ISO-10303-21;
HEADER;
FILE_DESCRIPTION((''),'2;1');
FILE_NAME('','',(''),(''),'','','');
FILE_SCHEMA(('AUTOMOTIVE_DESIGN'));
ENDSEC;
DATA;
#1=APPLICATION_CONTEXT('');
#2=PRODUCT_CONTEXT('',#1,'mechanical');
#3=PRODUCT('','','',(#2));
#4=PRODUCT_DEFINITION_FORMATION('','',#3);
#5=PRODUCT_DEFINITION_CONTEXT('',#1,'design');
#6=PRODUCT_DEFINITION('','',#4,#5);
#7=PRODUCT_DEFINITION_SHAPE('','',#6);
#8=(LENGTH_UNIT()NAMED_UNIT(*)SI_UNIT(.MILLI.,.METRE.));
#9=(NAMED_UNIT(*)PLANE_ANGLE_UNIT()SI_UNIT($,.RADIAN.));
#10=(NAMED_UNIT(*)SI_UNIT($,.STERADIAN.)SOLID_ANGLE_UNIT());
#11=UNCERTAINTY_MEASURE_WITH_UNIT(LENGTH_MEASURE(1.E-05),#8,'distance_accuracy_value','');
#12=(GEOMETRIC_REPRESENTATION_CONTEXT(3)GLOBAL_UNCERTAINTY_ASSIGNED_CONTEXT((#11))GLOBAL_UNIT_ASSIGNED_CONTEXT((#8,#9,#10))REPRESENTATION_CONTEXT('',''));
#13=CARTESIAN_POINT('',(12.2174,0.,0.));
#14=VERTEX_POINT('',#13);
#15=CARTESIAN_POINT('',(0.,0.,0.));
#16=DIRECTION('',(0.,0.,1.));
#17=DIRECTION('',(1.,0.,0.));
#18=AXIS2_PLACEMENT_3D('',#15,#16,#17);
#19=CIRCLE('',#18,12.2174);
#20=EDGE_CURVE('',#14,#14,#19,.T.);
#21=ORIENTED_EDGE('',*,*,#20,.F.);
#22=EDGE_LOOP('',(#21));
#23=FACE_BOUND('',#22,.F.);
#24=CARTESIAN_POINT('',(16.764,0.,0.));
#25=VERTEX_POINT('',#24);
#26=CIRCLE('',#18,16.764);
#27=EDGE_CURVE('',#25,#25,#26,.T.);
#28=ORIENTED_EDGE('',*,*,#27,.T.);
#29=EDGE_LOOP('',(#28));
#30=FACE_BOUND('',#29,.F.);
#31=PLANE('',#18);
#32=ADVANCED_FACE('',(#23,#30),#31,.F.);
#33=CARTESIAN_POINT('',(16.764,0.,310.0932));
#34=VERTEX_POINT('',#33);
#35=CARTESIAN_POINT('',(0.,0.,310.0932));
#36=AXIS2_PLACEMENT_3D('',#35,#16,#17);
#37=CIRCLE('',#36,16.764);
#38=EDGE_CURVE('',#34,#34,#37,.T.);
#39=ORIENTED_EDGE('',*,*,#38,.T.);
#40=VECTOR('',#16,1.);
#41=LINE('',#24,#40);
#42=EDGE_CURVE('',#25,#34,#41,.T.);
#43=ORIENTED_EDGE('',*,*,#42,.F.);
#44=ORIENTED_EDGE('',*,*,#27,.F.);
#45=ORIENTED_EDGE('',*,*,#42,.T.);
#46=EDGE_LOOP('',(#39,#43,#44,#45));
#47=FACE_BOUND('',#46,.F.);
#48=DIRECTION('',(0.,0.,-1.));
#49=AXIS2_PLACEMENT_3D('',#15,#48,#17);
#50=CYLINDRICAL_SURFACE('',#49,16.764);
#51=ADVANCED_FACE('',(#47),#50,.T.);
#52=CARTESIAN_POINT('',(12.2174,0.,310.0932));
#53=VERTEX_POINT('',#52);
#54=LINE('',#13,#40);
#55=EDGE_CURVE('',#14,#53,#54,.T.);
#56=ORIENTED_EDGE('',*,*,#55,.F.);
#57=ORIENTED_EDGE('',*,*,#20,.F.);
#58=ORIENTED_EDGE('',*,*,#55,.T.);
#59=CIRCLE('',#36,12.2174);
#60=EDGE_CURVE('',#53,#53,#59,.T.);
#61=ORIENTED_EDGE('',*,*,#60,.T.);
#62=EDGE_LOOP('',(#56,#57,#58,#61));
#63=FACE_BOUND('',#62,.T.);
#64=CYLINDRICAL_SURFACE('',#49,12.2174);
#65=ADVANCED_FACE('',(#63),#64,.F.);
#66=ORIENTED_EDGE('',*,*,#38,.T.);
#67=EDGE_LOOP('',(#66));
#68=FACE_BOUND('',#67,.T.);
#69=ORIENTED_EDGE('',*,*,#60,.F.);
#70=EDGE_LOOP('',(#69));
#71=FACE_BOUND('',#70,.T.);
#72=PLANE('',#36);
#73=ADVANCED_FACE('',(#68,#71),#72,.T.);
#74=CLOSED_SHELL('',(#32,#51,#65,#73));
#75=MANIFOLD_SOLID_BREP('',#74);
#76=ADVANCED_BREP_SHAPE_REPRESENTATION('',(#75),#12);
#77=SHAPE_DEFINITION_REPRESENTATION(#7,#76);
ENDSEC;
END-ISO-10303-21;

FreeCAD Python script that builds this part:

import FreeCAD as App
import Part
import Sketcher

V = App.Vector
Q = App.Units.Quantity

doc = App.newDocument("Part")
body = doc.addObject("PartDesign::Body", "Body")

# Sketch on XY plane
sketch1 = body.newObject("Sketcher::SketchObject", "Sketch")
sketch1.AttachmentSupport = (doc.getObject("XY_Plane"), [""])
sketch1.MapMode = "FlatFace"
sketch1.addGeometry(Part.Circle(V(0, 0, 0), V(0, 0, 1), 17), False)
sketch1.addGeometry(Part.Circle(V(0, 0, 0), V(0, 0, 1), 12), False)
sketch1.addConstraint(Sketcher.Constraint("Coincident", 0, 3, -1, 1))
sketch1.addConstraint(Sketcher.Constraint("Coincident", 1, 3, -1, 1))
sketch1.addConstraint(Sketcher.Constraint("Diameter", 0, Q("1.32 in")))
sketch1.addConstraint(Sketcher.Constraint("Diameter", 1, Q("0.962 in")))
pad1 = body.newObject("PartDesign::Pad", "Pad")
pad1.Profile = sketch1
pad1.Length = Q("12.2083937 in")

doc.recompute()
